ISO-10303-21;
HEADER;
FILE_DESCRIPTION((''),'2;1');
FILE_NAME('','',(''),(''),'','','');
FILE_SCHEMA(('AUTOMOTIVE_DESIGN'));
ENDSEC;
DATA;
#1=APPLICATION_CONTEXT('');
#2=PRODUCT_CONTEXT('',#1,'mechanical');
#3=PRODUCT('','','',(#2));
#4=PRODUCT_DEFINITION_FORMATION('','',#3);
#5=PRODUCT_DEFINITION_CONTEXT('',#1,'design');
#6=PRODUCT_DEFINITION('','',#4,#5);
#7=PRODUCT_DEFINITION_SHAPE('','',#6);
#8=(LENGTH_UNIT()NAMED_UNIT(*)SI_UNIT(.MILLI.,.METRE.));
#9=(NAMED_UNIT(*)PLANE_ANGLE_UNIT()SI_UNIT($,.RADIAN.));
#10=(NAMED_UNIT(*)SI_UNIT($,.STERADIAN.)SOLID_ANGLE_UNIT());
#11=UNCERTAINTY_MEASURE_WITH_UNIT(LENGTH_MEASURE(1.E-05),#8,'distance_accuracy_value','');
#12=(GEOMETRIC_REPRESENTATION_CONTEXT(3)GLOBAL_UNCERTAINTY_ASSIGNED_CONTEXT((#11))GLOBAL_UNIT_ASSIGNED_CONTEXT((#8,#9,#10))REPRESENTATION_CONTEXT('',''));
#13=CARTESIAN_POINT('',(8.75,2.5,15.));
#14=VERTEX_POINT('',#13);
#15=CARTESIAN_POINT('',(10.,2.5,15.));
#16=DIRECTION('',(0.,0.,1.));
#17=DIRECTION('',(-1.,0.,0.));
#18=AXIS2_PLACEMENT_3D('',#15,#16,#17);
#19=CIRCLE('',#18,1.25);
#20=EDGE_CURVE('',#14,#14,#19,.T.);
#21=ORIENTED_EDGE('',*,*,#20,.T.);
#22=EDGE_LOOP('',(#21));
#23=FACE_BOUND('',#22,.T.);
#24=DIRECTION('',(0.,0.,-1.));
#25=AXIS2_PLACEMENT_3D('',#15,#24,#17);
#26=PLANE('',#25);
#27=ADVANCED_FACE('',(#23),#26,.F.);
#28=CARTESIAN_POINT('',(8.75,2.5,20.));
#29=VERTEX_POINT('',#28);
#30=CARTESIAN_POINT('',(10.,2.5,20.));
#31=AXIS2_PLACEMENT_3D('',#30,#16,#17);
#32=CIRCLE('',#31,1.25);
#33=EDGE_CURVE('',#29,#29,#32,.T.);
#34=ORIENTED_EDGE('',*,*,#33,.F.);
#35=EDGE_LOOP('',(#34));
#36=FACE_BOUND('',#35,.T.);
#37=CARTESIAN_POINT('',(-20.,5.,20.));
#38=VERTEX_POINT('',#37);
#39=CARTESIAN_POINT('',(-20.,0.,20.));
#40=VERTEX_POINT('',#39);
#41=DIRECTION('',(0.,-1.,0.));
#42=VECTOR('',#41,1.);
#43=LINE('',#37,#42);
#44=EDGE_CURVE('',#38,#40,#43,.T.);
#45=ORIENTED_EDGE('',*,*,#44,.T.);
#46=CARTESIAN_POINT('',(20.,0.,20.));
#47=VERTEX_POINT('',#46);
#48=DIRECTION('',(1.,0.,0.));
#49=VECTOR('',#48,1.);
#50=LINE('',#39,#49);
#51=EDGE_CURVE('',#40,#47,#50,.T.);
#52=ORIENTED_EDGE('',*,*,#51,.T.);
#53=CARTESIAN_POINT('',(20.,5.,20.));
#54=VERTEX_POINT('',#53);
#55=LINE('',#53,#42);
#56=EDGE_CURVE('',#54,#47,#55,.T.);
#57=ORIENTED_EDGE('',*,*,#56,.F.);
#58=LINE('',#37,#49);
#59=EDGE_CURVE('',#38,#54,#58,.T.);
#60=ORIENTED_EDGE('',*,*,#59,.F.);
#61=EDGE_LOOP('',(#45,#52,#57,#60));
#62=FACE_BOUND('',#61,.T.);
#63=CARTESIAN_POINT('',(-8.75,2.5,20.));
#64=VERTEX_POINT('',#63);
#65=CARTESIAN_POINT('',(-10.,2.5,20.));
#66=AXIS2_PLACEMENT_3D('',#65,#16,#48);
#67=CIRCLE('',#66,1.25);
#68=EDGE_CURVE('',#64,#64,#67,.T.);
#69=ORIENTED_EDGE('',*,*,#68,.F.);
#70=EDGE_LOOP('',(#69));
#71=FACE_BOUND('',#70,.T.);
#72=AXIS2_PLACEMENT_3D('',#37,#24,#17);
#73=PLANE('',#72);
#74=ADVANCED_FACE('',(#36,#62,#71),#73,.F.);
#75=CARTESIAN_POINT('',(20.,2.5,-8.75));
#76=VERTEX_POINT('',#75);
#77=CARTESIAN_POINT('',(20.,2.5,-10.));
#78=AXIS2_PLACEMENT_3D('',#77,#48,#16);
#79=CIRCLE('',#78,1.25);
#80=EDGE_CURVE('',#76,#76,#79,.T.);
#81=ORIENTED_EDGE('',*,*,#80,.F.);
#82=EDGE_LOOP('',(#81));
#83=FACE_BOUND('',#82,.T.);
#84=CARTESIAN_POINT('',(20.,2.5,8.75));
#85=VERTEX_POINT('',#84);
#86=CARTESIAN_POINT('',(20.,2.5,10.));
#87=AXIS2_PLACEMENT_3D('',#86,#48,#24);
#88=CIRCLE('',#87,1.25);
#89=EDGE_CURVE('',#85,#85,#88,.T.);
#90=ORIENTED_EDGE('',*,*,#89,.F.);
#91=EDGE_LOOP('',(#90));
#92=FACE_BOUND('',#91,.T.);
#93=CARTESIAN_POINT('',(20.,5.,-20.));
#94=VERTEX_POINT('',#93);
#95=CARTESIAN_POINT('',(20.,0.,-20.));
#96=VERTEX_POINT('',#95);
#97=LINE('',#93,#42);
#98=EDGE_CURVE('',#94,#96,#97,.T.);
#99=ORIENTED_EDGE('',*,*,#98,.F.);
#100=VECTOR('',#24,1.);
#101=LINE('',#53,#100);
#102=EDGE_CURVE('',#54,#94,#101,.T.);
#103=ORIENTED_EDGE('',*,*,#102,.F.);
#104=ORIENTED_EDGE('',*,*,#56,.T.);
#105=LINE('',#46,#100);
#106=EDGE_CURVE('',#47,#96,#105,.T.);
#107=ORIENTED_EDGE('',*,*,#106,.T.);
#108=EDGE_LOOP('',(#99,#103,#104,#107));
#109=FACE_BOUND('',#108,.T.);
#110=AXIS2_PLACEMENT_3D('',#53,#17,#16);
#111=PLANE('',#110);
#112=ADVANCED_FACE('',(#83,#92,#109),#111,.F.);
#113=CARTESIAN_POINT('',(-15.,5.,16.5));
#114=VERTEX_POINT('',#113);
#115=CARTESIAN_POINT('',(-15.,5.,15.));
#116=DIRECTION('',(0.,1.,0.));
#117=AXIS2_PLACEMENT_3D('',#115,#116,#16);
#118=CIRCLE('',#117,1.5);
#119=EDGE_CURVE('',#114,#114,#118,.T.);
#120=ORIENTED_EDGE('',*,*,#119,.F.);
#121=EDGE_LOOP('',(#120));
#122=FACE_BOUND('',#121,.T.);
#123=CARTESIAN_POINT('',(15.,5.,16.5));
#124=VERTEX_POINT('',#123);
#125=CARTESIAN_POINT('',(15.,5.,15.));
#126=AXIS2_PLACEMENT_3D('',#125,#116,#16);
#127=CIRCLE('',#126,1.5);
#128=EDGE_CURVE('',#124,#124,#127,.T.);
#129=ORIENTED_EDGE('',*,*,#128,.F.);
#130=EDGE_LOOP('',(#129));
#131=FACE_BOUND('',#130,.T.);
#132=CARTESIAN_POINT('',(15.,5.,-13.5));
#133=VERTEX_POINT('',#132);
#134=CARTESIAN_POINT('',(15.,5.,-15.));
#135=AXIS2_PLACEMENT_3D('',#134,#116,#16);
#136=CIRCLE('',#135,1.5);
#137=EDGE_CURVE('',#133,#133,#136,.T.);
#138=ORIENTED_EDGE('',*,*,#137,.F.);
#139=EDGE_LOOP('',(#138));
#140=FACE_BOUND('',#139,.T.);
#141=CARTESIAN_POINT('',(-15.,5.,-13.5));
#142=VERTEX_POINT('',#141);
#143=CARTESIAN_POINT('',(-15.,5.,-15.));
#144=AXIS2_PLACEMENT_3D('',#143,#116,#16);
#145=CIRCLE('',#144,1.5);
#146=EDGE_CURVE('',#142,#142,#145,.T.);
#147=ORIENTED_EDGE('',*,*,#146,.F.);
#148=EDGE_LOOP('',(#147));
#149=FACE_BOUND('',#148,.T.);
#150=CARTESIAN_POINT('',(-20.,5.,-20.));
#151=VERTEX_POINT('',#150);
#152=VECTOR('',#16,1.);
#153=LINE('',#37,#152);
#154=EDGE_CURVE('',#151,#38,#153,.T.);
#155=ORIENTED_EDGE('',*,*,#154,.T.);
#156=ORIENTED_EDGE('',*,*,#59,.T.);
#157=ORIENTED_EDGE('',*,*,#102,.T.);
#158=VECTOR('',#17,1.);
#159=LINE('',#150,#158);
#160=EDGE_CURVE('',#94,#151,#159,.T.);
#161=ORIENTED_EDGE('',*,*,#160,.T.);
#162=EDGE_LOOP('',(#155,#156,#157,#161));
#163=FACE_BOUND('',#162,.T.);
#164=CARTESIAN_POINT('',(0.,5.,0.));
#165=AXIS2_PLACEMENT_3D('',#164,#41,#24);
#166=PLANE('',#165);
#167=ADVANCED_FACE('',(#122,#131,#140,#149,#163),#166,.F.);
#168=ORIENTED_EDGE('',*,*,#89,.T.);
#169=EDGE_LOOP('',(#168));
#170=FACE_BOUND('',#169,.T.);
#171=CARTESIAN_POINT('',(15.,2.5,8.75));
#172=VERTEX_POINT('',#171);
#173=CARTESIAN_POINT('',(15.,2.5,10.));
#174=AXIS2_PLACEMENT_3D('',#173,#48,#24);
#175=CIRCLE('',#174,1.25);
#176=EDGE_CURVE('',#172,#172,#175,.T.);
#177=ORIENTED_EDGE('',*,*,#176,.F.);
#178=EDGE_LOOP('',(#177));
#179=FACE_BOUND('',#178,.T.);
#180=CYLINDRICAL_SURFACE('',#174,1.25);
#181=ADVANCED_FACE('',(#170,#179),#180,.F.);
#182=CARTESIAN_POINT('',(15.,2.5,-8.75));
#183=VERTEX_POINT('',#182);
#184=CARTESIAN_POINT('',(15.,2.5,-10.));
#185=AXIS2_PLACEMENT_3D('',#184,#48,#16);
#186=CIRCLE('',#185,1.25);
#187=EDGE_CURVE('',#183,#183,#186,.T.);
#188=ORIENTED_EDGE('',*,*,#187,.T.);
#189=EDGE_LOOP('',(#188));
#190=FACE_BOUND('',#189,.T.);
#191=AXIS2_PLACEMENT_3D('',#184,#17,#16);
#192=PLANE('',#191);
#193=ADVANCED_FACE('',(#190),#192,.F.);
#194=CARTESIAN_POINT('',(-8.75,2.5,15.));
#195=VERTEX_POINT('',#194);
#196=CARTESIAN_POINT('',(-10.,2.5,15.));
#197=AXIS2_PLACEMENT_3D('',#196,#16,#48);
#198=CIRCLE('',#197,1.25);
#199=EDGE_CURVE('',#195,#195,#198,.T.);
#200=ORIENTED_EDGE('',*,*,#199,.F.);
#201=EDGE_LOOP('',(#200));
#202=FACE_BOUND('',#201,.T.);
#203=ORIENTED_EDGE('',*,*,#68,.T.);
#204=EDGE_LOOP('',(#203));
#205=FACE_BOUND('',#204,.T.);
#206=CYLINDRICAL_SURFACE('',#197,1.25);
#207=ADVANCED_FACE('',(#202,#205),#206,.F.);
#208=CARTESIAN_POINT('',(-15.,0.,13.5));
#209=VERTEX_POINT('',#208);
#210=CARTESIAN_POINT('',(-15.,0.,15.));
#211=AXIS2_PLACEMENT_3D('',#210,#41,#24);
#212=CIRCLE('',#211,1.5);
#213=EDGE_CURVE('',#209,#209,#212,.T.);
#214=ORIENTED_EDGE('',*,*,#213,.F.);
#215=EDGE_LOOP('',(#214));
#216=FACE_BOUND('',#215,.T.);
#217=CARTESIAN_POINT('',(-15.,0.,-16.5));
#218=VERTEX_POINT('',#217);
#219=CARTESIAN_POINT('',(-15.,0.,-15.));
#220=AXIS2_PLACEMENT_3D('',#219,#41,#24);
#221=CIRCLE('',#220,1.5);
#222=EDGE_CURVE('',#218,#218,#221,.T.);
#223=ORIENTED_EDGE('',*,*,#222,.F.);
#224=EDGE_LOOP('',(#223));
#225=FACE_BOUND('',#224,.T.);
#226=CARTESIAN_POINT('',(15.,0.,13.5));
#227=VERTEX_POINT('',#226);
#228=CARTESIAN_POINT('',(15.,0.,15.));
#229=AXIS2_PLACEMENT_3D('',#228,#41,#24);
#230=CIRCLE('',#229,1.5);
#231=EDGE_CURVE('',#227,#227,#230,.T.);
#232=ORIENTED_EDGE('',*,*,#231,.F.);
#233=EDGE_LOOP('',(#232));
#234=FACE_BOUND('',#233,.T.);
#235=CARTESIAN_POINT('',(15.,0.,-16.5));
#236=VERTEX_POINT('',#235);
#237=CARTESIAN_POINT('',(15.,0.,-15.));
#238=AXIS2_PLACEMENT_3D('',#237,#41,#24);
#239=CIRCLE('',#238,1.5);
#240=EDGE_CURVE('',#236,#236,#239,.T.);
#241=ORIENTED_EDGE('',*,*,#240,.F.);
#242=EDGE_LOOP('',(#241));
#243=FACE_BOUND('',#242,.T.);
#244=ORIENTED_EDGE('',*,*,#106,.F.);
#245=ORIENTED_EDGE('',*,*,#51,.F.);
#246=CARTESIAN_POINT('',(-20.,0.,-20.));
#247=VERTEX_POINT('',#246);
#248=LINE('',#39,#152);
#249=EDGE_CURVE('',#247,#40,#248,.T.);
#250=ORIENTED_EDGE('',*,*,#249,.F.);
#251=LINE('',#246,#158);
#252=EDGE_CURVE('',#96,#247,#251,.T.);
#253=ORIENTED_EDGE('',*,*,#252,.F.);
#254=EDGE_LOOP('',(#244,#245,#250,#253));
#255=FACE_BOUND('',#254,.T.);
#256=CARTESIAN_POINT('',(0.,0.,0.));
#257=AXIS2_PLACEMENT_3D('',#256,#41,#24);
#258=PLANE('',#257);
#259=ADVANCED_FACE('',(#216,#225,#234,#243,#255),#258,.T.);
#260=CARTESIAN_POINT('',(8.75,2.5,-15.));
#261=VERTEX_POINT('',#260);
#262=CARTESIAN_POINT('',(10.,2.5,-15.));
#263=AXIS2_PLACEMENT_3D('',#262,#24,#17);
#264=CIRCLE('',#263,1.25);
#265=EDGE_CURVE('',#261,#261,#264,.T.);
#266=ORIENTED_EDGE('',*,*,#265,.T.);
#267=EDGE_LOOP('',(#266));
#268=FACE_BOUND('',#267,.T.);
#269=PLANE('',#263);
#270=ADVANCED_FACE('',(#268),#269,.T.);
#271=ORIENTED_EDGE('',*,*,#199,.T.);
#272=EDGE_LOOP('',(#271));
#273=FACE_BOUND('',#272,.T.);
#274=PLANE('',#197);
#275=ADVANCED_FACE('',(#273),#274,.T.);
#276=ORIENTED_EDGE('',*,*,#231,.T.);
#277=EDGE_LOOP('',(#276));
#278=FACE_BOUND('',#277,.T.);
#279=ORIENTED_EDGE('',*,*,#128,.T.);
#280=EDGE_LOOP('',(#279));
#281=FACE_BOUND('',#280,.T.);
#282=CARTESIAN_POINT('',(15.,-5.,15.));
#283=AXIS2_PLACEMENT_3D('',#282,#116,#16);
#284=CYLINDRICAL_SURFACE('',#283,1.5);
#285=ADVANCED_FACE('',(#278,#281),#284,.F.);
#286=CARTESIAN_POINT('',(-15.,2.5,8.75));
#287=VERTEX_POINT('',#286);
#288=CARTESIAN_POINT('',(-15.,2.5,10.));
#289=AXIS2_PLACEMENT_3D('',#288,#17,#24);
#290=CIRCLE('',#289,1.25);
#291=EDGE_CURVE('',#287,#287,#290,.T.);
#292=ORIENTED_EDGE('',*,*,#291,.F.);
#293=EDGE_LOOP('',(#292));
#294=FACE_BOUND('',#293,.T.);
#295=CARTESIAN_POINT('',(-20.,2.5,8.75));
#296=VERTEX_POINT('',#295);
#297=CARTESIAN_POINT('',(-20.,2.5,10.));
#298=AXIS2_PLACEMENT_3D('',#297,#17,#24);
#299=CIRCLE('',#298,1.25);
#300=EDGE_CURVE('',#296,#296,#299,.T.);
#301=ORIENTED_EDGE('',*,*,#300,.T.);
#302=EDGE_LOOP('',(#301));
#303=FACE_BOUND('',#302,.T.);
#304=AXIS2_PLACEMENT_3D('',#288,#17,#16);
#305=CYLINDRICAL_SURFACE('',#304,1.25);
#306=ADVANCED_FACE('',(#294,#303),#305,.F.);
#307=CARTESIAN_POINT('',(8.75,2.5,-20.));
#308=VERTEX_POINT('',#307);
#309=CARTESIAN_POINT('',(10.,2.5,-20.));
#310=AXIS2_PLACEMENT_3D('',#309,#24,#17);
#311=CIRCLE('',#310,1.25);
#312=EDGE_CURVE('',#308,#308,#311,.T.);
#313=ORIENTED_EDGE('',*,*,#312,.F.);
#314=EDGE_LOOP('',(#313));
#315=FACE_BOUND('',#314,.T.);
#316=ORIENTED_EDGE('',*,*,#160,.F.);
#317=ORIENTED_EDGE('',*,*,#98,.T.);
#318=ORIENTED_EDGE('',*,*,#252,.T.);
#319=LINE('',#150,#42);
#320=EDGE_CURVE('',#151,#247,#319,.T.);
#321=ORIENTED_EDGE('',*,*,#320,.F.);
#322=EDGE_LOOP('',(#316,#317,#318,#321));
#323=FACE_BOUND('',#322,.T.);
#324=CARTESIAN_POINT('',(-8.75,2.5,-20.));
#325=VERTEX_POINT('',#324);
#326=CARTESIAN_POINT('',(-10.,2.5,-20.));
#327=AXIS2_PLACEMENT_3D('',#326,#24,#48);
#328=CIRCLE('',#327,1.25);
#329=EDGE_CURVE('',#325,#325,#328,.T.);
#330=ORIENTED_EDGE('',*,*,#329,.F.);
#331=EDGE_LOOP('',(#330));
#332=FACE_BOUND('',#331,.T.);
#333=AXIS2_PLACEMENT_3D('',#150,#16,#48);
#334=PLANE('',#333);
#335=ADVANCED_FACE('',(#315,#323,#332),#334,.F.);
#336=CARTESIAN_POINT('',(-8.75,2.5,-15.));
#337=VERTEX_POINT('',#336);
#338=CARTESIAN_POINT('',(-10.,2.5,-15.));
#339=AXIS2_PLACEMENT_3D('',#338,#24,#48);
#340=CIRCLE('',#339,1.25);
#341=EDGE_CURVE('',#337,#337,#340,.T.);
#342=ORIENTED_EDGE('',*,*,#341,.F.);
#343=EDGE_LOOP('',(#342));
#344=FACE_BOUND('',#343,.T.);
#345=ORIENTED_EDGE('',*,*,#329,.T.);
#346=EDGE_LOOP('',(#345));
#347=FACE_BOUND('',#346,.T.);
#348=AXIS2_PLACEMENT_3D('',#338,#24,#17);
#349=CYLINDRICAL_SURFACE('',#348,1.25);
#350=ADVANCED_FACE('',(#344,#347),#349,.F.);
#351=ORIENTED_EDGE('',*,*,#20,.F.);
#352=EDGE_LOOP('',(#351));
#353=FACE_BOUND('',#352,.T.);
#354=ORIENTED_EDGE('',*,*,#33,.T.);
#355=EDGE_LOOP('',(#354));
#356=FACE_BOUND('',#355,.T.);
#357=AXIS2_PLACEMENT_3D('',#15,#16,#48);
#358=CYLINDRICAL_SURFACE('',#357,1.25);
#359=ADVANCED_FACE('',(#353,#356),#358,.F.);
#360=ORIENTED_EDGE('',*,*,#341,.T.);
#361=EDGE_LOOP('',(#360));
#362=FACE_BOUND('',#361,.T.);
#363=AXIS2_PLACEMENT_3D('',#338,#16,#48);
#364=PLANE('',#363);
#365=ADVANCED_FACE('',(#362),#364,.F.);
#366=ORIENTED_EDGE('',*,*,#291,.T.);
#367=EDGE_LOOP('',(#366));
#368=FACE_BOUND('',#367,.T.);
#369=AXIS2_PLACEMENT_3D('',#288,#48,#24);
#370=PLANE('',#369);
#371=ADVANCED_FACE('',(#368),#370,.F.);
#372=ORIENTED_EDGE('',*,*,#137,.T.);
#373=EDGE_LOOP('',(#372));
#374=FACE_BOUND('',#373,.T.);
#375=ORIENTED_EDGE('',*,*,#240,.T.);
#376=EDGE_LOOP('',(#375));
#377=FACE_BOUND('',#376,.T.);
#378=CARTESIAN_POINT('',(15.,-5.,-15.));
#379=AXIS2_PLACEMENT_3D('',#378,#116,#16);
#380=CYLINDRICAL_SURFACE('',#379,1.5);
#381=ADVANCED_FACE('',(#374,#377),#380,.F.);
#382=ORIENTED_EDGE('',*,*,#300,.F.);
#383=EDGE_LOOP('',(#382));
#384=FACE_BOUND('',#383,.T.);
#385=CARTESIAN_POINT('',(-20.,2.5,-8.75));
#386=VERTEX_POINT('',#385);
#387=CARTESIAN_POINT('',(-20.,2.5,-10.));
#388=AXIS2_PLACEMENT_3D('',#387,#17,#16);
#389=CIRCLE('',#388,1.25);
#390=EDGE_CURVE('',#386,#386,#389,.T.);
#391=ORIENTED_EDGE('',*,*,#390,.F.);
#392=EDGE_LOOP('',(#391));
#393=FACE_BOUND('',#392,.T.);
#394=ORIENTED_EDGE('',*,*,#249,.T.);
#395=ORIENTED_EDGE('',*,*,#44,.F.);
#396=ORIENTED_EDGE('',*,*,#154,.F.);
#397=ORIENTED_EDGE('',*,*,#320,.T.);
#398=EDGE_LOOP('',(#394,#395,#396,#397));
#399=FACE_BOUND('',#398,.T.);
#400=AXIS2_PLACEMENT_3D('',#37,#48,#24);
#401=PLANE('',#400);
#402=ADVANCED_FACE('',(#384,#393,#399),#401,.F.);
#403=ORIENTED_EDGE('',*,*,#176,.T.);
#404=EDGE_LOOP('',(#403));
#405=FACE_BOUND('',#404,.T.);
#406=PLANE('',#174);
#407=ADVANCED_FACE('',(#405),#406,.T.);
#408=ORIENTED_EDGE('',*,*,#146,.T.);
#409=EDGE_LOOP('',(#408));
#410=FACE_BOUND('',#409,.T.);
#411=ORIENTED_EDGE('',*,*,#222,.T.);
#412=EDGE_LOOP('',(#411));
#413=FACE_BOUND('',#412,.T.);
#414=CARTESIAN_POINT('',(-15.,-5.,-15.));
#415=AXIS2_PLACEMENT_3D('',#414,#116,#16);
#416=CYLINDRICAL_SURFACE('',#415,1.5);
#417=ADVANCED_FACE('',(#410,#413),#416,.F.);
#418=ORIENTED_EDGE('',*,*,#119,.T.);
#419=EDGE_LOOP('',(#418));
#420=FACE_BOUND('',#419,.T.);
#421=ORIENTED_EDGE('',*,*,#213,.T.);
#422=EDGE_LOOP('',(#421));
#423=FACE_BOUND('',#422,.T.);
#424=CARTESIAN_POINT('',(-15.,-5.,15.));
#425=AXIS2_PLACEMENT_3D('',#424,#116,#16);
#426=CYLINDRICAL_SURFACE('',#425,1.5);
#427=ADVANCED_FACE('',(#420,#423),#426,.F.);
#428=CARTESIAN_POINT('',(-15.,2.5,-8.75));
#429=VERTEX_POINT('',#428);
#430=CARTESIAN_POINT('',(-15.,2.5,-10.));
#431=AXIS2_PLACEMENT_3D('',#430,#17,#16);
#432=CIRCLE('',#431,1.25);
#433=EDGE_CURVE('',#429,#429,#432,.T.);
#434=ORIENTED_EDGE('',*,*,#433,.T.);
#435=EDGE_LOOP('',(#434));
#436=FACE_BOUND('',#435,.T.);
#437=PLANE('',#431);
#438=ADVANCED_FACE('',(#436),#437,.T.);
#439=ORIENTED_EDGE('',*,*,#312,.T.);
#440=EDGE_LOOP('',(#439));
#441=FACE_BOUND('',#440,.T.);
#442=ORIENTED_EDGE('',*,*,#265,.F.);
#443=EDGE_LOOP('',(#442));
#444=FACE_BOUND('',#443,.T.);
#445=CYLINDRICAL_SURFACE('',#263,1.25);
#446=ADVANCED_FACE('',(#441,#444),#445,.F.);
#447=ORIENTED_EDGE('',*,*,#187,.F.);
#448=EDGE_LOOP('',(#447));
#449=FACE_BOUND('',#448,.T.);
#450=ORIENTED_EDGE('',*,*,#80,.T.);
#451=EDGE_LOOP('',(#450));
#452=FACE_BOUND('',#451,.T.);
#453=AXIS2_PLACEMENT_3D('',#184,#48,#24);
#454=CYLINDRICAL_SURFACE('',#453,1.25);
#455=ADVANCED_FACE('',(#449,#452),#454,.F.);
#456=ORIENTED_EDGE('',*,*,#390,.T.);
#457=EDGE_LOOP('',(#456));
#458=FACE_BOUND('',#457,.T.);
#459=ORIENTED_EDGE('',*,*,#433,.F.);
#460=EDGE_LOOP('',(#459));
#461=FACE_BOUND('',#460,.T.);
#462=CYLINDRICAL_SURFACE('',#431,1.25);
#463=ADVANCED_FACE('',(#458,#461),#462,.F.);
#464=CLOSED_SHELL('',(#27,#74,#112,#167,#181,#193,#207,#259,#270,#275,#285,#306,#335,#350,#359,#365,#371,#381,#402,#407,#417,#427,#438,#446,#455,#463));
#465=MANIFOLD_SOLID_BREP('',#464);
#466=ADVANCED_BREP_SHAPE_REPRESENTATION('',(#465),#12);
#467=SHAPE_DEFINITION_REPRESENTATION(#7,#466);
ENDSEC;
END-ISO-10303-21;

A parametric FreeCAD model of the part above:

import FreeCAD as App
import Part
import Sketcher
Q = App.Units.Quantity

doc = App.newDocument("Part")
params = doc.addObject("Spreadsheet::Sheet", "Params")
for row, (alias, value) in enumerate([
    ("sketch1_width", "40 mm"),
    ("pad1_length", "5 mm"),
    ("sketch2_diameter", "2.5 mm"),
    ("pocket1_length", "5 mm"),
    ("sketch3_diameter", "3 mm"),
    ("pocket2_length", "10 mm"),
], start=1):
    params.set(f"A{row}", alias)
    params.set(f"B{row}", "=" + value)
    params.setAlias(f"B{row}", alias)

body = doc.addObject("PartDesign::Body", "Body")

# Sketch on XZ plane
sketch1 = doc.addObject("Sketcher::SketchObject", "Sketch")
body.addObject(sketch1)
sketch1.AttachmentSupport = (doc.XZ_Plane, [""])
sketch1.MapMode = "FlatFace"
sketch1.addGeometry([
    Part.LineSegment(App.Vector(-20, -20, 0), App.Vector(-20, 20, 0)),
    Part.LineSegment(App.Vector(-20, 20, 0), App.Vector(20, 20, 0)),
    Part.LineSegment(App.Vector(20, 20, 0), App.Vector(20, -20, 0)),
    Part.LineSegment(App.Vector(20, -20, 0), App.Vector(-20, -20, 0)),
], False)
sketch1.addConstraint([
    Sketcher.Constraint("Coincident", 0, 2, 1, 1),
    Sketcher.Constraint("Coincident", 1, 2, 2, 1),
    Sketcher.Constraint("Coincident", 2, 2, 3, 1),
    Sketcher.Constraint("Coincident", 3, 2, 0, 1),
    Sketcher.Constraint("Vertical", 0),
    Sketcher.Constraint("Horizontal", 1),
    Sketcher.Constraint("Vertical", 2),
    Sketcher.Constraint("Horizontal", 3),
    Sketcher.Constraint("Symmetric", 0, 2, 2, 2, -1, 1),
    Sketcher.Constraint("Equal", 3, 0),
    Sketcher.Constraint("DistanceX", 1, 1, 1, 2, Q("40 mm")),
])
sketch1.setExpression("Constraints[10]", "Params.sketch1_width")
pad1 = doc.addObject("PartDesign::Pad", "Pad")
body.addObject(pad1)
pad1.Profile = sketch1
pad1.setExpression("Length", "Params.pad1_length")
pad1.Reversed = True

# Sketch on XY plane
sketch2 = doc.addObject("Sketcher::SketchObject", "Sketch001")
body.addObject(sketch2)
sketch2.AttachmentSupport = (doc.XY_Plane, [""])
sketch2.MapMode = "FlatFace"
sketch2.AttachmentOffset = App.Placement(App.Vector(0, 0, 20), App.Rotation())
sketch2.addGeometry([
    Part.Circle(App.Vector(-10, 2.5, 0), App.Vector(0, 0, 1), 1.2),
    Part.Circle(App.Vector(10, 2.5, 0), App.Vector(0, 0, 1), 1.2),
], False)
sketch2.addConstraint([
    Sketcher.Constraint("Equal", 0, 1),
    Sketcher.Constraint("Symmetric", 0, 3, 1, 3, -2),
    Sketcher.Constraint("Diameter", 0, Q("2.5 mm")),
    Sketcher.Constraint("DistanceX", 0, 3, -1, 1, Q("10 mm")),
    Sketcher.Constraint("DistanceY", -1, 1, 0, 3, Q("2.5 mm")),
])
sketch2.setExpression("Constraints[2]", "Params.sketch2_diameter")
pocket1 = doc.addObject("PartDesign::Pocket", "Pocket")
body.addObject(pocket1)
pocket1.Profile = sketch2
pocket1.setExpression("Length", "Params.pocket1_length")
doc.recompute()

polarpattern = doc.addObject("PartDesign::PolarPattern", "PolarPattern")
body.addObject(polarpattern)
polarpattern.Originals = [pocket1]
polarpattern.Axis = (doc.Y_Axis, [""])
polarpattern.Angle = 360
polarpattern.Occurrences = 4
body.Tip = polarpattern

# Sketch on XZ plane
sketch3 = doc.addObject("Sketcher::SketchObject", "Sketch002")
body.addObject(sketch3)
sketch3.AttachmentSupport = (doc.XZ_Plane, [""])
sketch3.MapMode = "FlatFace"
sketch3.AttachmentOffset = App.Placement(App.Vector(0, 0, -5), App.Rotation())
sketch3.addGeometry([
    Part.Circle(App.Vector(-15, -15, 0), App.Vector(0, 0, 1), 1.5),
    Part.Circle(App.Vector(15, -15, 0), App.Vector(0, 0, 1), 1.5),
    Part.Circle(App.Vector(15, 15, 0), App.Vector(0, 0, 1), 1.5),
    Part.Circle(App.Vector(-15, 15, 0), App.Vector(0, 0, 1), 1.5),
], False)
sketch3.addConstraint([
    Sketcher.Constraint("Equal", 0, 1),
    Sketcher.Constraint("Equal", 1, 2),
    Sketcher.Constraint("Equal", 2, 3),
    Sketcher.Constraint("Symmetric", 0, 3, 2, 3, -1, 1),
    Sketcher.Constraint("Symmetric", 1, 3, 3, 3, -1, 1),
    Sketcher.Constraint("Symmetric", 0, 3, 1, 3, -2),
    Sketcher.Constraint("Diameter", 0, Q("3 mm")),
    Sketcher.Constraint("DistanceX", 0, 3, -1, 1, Q("15 mm")),
    Sketcher.Constraint("DistanceY", 0, 3, -1, 1, Q("15 mm")),
])
sketch3.setExpression("Constraints[6]", "Params.sketch3_diameter")
pocket2 = doc.addObject("PartDesign::Pocket", "Pocket001")
body.addObject(pocket2)
pocket2.Profile = sketch3
pocket2.setExpression("Length", "Params.pocket2_length")
pocket2.Reversed = True

doc.recompute()
